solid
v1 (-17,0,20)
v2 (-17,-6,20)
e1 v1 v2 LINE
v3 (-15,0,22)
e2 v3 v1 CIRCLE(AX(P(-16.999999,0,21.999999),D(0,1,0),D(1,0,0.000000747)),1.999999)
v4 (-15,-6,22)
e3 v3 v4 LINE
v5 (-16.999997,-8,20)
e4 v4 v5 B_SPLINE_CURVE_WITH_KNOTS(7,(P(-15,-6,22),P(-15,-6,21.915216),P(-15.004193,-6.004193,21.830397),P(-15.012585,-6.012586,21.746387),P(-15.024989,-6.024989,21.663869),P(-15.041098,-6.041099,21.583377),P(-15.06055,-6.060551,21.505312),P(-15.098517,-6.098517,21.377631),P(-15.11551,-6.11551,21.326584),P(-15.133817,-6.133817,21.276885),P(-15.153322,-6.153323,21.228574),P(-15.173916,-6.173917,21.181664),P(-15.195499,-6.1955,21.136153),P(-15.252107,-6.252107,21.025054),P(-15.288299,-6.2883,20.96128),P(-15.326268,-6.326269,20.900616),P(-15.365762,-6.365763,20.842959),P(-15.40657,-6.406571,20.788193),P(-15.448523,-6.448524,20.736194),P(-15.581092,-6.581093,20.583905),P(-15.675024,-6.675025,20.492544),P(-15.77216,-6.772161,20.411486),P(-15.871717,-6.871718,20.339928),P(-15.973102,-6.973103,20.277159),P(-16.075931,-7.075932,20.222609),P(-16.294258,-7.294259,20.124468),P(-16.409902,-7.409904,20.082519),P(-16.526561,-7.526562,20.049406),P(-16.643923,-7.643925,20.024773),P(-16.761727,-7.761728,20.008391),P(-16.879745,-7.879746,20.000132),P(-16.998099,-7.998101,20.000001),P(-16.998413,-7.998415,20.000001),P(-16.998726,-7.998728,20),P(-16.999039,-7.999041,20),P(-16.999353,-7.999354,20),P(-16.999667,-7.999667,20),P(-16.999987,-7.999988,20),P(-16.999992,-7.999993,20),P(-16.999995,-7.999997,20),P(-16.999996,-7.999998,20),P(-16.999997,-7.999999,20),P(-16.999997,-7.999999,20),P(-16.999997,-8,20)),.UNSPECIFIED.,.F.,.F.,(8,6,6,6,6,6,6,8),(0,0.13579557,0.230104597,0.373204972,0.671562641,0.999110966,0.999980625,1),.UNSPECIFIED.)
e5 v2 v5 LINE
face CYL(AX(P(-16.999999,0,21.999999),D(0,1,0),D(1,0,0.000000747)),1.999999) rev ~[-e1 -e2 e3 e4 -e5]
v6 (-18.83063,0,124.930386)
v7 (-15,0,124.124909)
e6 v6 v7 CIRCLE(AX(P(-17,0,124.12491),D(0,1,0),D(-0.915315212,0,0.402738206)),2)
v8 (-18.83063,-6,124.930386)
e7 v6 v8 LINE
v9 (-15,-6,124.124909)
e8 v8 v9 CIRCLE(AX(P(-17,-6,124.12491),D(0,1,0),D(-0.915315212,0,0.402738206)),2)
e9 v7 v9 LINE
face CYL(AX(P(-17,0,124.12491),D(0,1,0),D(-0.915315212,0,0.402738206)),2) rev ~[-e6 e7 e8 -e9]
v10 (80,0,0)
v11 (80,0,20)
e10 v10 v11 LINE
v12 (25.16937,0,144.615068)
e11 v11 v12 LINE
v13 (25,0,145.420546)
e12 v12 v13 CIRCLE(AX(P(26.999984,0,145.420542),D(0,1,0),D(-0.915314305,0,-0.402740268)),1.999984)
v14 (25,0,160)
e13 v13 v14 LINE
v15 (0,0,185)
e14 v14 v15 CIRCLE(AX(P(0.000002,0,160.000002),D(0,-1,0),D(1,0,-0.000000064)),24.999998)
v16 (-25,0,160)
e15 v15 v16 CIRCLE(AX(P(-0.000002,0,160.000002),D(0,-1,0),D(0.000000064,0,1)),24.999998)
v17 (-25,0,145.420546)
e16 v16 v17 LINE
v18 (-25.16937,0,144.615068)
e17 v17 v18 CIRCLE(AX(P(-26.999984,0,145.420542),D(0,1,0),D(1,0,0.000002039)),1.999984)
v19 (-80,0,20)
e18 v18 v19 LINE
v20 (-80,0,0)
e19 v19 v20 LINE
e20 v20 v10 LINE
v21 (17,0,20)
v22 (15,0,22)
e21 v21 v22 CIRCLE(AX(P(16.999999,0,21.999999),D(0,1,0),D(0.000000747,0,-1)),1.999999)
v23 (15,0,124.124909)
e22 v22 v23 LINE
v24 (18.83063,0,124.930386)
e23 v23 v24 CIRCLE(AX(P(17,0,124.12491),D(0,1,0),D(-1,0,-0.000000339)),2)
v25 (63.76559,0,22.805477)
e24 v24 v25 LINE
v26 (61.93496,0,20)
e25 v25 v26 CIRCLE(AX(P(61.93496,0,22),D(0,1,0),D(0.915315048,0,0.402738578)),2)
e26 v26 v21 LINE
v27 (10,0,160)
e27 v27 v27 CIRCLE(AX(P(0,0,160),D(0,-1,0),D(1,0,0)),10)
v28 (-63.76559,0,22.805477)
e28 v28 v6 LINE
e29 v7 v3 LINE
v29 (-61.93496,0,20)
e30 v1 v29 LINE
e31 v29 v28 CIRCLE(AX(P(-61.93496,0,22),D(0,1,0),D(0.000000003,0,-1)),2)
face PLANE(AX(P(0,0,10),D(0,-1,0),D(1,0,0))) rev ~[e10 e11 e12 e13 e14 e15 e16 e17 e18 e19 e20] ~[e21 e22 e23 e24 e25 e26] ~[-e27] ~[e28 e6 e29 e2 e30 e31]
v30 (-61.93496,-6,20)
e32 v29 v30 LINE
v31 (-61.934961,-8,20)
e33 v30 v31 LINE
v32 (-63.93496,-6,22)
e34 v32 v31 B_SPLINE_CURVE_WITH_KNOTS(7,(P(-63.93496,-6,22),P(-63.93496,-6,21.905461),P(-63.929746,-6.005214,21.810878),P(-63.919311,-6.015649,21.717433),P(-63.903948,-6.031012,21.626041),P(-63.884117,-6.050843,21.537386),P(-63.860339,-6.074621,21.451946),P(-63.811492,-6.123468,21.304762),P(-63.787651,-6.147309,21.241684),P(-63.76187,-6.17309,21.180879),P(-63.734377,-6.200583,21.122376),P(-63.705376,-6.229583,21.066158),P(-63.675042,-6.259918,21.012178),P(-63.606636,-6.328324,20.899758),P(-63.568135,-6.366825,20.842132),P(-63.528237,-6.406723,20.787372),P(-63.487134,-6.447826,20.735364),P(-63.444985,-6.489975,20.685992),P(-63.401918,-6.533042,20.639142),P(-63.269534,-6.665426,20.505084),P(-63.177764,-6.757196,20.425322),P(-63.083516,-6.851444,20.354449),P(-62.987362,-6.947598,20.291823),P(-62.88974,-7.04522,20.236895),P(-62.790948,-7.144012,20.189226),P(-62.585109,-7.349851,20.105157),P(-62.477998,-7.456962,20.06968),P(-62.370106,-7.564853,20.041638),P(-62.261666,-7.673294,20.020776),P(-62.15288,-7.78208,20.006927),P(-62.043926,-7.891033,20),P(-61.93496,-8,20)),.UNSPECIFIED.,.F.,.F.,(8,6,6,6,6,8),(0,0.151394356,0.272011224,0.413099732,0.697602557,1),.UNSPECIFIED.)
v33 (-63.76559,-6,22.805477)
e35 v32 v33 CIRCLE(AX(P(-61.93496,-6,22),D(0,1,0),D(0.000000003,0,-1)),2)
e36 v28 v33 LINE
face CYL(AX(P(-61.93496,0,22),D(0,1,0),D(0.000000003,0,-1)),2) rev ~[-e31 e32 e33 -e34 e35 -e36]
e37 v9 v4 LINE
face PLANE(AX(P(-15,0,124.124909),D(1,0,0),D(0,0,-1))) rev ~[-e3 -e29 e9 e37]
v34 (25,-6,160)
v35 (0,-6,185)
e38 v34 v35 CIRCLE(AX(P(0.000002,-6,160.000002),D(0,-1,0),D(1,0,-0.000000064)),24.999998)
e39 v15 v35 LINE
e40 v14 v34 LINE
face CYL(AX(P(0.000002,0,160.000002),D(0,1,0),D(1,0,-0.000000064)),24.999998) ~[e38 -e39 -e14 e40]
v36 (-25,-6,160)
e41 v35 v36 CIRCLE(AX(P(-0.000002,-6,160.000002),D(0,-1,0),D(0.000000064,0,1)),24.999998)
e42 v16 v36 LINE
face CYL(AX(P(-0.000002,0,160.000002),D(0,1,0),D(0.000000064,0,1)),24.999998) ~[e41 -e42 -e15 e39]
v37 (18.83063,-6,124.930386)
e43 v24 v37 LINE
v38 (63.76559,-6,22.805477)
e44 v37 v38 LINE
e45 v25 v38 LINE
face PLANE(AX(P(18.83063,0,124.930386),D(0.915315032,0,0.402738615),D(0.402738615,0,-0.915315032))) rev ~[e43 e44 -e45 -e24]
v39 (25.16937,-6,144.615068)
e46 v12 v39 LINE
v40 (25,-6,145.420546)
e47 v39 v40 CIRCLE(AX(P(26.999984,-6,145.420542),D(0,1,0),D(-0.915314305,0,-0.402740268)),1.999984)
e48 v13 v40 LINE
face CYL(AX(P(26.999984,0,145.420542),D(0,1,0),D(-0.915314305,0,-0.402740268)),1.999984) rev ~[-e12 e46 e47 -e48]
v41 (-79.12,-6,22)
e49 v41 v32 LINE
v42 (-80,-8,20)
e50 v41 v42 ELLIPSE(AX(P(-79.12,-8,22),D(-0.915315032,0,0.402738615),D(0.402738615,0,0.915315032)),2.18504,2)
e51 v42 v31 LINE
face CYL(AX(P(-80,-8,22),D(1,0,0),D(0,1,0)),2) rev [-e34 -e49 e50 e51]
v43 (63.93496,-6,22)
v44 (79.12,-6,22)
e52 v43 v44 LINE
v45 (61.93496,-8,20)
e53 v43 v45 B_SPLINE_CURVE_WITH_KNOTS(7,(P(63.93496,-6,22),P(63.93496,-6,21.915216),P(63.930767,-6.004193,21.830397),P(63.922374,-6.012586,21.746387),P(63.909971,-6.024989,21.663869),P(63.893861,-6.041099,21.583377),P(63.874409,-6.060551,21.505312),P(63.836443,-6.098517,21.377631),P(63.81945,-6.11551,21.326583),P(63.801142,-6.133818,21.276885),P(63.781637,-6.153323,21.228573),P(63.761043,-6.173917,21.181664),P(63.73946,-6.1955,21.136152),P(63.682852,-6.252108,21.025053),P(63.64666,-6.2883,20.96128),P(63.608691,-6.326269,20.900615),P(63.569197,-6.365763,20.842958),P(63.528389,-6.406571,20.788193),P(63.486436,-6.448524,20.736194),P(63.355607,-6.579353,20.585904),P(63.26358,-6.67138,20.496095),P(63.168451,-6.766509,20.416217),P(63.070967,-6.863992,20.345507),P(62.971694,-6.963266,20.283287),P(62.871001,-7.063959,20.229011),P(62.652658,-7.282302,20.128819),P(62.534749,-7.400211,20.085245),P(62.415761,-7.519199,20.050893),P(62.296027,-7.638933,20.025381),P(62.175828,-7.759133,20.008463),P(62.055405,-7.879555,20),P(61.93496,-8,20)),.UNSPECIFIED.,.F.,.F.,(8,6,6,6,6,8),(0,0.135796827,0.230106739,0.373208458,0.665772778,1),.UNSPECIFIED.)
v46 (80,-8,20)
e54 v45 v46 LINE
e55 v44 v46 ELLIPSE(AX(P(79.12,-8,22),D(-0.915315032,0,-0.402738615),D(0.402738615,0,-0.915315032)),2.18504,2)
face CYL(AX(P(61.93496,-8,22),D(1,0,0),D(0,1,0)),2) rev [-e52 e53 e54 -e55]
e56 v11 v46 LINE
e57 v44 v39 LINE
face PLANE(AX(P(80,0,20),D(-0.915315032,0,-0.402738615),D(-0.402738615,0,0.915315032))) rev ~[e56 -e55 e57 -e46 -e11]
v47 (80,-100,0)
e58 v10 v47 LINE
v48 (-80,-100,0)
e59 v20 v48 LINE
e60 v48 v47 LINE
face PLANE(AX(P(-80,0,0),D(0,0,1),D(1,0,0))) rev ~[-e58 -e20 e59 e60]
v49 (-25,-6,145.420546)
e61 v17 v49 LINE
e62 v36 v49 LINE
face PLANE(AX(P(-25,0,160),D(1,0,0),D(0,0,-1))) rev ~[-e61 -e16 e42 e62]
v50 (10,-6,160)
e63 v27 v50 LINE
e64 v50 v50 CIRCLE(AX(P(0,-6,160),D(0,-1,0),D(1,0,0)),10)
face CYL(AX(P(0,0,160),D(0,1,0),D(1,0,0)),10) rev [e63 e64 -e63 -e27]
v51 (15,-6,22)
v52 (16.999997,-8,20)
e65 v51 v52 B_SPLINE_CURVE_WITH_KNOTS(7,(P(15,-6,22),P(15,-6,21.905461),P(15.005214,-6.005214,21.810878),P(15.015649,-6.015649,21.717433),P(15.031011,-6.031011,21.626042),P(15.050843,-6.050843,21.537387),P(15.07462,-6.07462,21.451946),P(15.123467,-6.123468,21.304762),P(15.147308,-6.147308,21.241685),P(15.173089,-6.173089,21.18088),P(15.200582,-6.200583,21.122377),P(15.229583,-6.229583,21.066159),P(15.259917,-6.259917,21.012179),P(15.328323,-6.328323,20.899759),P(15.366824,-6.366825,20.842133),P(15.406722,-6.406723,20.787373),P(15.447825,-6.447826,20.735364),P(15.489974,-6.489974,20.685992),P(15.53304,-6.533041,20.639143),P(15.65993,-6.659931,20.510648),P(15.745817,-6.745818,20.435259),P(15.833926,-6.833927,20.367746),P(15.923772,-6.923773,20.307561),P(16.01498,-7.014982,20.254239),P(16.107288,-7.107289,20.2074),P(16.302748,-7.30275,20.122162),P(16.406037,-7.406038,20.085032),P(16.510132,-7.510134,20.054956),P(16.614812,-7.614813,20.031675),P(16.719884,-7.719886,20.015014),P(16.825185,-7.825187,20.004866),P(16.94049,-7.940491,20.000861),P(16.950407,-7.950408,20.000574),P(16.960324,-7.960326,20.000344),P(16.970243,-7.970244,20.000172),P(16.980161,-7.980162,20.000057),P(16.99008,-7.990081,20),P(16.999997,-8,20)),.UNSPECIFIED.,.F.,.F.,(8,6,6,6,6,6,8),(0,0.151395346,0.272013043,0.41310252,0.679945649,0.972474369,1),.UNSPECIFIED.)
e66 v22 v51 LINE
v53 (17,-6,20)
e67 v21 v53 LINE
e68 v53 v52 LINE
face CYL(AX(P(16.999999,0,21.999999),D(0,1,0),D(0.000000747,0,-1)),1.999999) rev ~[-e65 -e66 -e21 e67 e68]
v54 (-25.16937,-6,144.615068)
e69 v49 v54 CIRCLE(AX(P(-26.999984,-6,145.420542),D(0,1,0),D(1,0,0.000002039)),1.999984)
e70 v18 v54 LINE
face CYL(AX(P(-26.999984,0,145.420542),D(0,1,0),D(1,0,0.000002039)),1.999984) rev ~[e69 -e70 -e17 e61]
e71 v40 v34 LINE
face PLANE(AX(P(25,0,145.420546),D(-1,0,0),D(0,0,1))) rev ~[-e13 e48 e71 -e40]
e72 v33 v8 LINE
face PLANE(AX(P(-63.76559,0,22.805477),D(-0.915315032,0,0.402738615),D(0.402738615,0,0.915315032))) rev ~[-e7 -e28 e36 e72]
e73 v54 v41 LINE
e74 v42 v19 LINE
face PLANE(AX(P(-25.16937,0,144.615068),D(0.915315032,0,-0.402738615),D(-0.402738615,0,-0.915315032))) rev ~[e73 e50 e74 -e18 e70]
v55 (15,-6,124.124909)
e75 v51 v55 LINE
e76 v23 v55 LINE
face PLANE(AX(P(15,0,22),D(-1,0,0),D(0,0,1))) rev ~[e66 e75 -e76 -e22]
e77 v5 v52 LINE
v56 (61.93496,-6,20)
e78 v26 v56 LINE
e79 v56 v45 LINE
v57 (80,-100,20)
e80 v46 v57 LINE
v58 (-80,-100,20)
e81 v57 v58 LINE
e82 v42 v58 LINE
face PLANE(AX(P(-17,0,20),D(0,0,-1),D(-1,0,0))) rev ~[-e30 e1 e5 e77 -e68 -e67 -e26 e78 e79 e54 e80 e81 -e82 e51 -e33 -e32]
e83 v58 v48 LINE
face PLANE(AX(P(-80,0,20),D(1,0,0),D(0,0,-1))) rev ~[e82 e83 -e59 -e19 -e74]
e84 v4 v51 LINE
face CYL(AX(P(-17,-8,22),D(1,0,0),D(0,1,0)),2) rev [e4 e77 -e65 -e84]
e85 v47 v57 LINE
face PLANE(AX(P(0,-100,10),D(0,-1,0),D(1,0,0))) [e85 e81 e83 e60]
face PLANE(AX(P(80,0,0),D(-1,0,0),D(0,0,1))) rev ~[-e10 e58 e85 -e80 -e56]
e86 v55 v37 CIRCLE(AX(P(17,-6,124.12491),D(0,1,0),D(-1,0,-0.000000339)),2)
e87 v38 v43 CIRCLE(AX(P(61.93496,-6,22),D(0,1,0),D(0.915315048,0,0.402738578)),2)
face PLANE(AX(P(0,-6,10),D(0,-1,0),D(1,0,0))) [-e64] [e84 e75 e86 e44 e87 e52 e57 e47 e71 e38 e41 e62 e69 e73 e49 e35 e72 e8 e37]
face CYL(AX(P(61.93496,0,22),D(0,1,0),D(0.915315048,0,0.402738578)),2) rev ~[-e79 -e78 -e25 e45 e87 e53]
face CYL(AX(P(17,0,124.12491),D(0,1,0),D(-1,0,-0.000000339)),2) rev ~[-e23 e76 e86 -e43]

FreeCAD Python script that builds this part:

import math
import FreeCAD as App
import Part
import Sketcher

V = App.Vector
Q = App.Units.Quantity


def edges_at(feature, points):
    """Names of the edges that pass closest to the given points."""
    edges = feature.Shape.Edges
    near = lambda p: min(range(len(edges)), key=lambda i: edges[i].distToShape(Part.Vertex(*p))[0])
    return sorted({f"Edge{near(p) + 1}" for p in points})


def add_polygon(sketch, points):
    """Adds a closed chain of lines whose ends are joined by coincident constraints."""
    first, n = sketch.GeometryCount, len(points)
    for a, b in zip(points, points[1:] + points[:1]):
        sketch.addGeometry(Part.LineSegment(App.Vector(*a, 0), App.Vector(*b, 0)), False)
    for i in range(n):
        sketch.addConstraint(Sketcher.Constraint("Coincident", first + i, 2, first + (i + 1) % n, 1))

doc = App.newDocument("Part")
body = doc.addObject("PartDesign::Body", "Body")

# Sketch on XZ plane
sketch1 = doc.addObject("Sketcher::SketchObject", "Sketch")
body.addObject(sketch1)
sketch1.AttachmentSupport = (doc.XZ_Plane, [""])
sketch1.MapMode = "FlatFace"
sketch1.addGeometry(Part.LineSegment(V(-80, 20, 0), V(-80, 0, 0)), False)
sketch1.addGeometry(Part.LineSegment(V(-80, 0, 0), V(80, 0, 0)), False)
sketch1.addGeometry(Part.LineSegment(V(80, 0, 0), V(80, 20, 0)), False)
sketch1.addGeometry(Part.LineSegment(V(80, 20, 0), V(25.2, 144.6, 0)), False)
sketch1.addGeometry(Part.ArcOfCircle(Part.Circle(V(27, 145.4, 0), V(0, 0, 1), 2), math.radians(180), math.radians(204)), False)
sketch1.addGeometry(Part.LineSegment(V(25, 145.4, 0), V(25, 160, 0)), False)
sketch1.addGeometry(Part.ArcOfCircle(Part.Circle(V(0, 160, 0), V(0, 0, 1), 25), math.radians(0), math.radians(90)), False)
sketch1.addGeometry(Part.ArcOfCircle(Part.Circle(V(0, 160, 0), V(0, 0, 1), 25), math.radians(90), math.radians(180)), False)
sketch1.addGeometry(Part.LineSegment(V(-25, 160, 0), V(-25, 145.4, 0)), False)
sketch1.addGeometry(Part.ArcOfCircle(Part.Circle(V(-27, 145.4, 0), V(0, 0, 1), 2), math.radians(-24), math.radians(0)), False)
sketch1.addGeometry(Part.LineSegment(V(-25.2, 144.6, 0), V(-80, 20, 0)), False)
sketch1.addGeometry(Part.LineSegment(V(-17, 20, 0), V(-61.9, 20, 0)), False)
sketch1.addGeometry(Part.ArcOfCircle(Part.Circle(V(-61.9, 22, 0), V(0, 0, 1), 2), math.radians(156), math.radians(270)), False)
sketch1.addGeometry(Part.LineSegment(V(-63.8, 22.8, 0), V(-18.8, 124.9, 0)), False)
sketch1.addGeometry(Part.ArcOfCircle(Part.Circle(V(-17, 124.1, 0), V(0, 0, 1), 2), math.radians(0), math.radians(156)), False)
sketch1.addGeometry(Part.LineSegment(V(-15, 124.1, 0), V(-15, 22, 0)), False)
sketch1.addGeometry(Part.ArcOfCircle(Part.Circle(V(-17, 22, 0), V(0, 0, 1), 2), math.radians(-90), math.radians(0)), False)
sketch1.addGeometry(Part.LineSegment(V(61.9, 20, 0), V(17, 20, 0)), False)
sketch1.addGeometry(Part.ArcOfCircle(Part.Circle(V(17, 22, 0), V(0, 0, 1), 2), math.radians(180), math.radians(270)), False)
sketch1.addGeometry(Part.LineSegment(V(15, 22, 0), V(15, 124.1, 0)), False)
sketch1.addGeometry(Part.ArcOfCircle(Part.Circle(V(17, 124.1, 0), V(0, 0, 1), 2), math.radians(24), math.radians(180)), False)
sketch1.addGeometry(Part.LineSegment(V(18.8, 124.9, 0), V(63.8, 22.8, 0)), False)
sketch1.addGeometry(Part.ArcOfCircle(Part.Circle(V(61.9, 22, 0), V(0, 0, 1), 2), math.radians(-90), math.radians(24)), False)
sketch1.addGeometry(Part.Circle(V(0, 160, 0), V(0, 0, 1), 10), False)
sketch1.addConstraint(Sketcher.Constraint("Coincident", 0, 2, 1, 1))
sketch1.addConstraint(Sketcher.Constraint("Coincident", 1, 2, 2, 1))
sketch1.addConstraint(Sketcher.Constraint("Coincident", 2, 2, 3, 1))
sketch1.addConstraint(Sketcher.Constraint("Tangent", 3, 2, 4, 2))
sketch1.addConstraint(Sketcher.Constraint("Coincident", 4, 1, 5, 1))
sketch1.addConstraint(Sketcher.Constraint("Tangent", 5, 2, 6, 1))
sketch1.addConstraint(Sketcher.Constraint("Tangent", 6, 2, 7, 1))
sketch1.addConstraint(Sketcher.Constraint("Tangent", 7, 2, 8, 1))
sketch1.addConstraint(Sketcher.Constraint("Coincident", 8, 2, 9, 2))
sketch1.addConstraint(Sketcher.Constraint("Tangent", 9, 1, 10, 1))
sketch1.addConstraint(Sketcher.Constraint("Coincident", 10, 2, 0, 1))
sketch1.addConstraint(Sketcher.Constraint("Tangent", 11, 2, 12, 2))
sketch1.addConstraint(Sketcher.Constraint("Tangent", 12, 1, 13, 1))
sketch1.addConstraint(Sketcher.Constraint("Tangent", 13, 2, 14, 2))
sketch1.addConstraint(Sketcher.Constraint("Tangent", 14, 1, 15, 1))
sketch1.addConstraint(Sketcher.Constraint("Tangent", 15, 2, 16, 2))
sketch1.addConstraint(Sketcher.Constraint("Tangent", 16, 1, 11, 1))
sketch1.addConstraint(Sketcher.Constraint("Tangent", 17, 2, 18, 2))
sketch1.addConstraint(Sketcher.Constraint("Tangent", 18, 1, 19, 1))
sketch1.addConstraint(Sketcher.Constraint("Tangent", 19, 2, 20, 2))
sketch1.addConstraint(Sketcher.Constraint("Tangent", 20, 1, 21, 1))
sketch1.addConstraint(Sketcher.Constraint("Tangent", 21, 2, 22, 2))
sketch1.addConstraint(Sketcher.Constraint("Tangent", 22, 1, 17, 1))
sketch1.addConstraint(Sketcher.Constraint("Vertical", 0))
sketch1.addConstraint(Sketcher.Constraint("Horizontal", 1))
sketch1.addConstraint(Sketcher.Constraint("Vertical", 2))
sketch1.addConstraint(Sketcher.Constraint("Vertical", 5))
sketch1.addConstraint(Sketcher.Constraint("Vertical", 8))
sketch1.addConstraint(Sketcher.Constraint("Horizontal", 11))
sketch1.addConstraint(Sketcher.Constraint("Vertical", 15))
sketch1.addConstraint(Sketcher.Constraint("Horizontal", 17))
sketch1.addConstraint(Sketcher.Constraint("Vertical", 19))
sketch1.addConstraint(Sketcher.Constraint("Coincident", 23, 3, 6, 3))
sketch1.addConstraint(Sketcher.Constraint("Equal", 6, 7))
sketch1.addConstraint(Sketcher.Constraint("Equal", 4, 9))
sketch1.addConstraint(Sketcher.Constraint("Equal", 12, 14))
sketch1.addConstraint(Sketcher.Constraint("Equal", 14, 16))
sketch1.addConstraint(Sketcher.Constraint("Equal", 16, 18))
sketch1.addConstraint(Sketcher.Constraint("Equal", 18, 20))
sketch1.addConstraint(Sketcher.Constraint("Equal", 20, 22))
sketch1.addConstraint(Sketcher.Constraint("Symmetric", 0, 2, 1, 2, -1, 1))
sketch1.addConstraint(Sketcher.Constraint("Symmetric", 4, 3, 9, 3, -2))
sketch1.addConstraint(Sketcher.Constraint("Symmetric", 16, 3, 18, 3, -2))
sketch1.addConstraint(Sketcher.Constraint("Symmetric", 13, 2, 20, 1, -2))
sketch1.addConstraint(Sketcher.Constraint("PointOnObject", 6, 2, -2))
sketch1.addConstraint(Sketcher.Constraint("Parallel", 10, 13))
sketch1.addConstraint(Sketcher.Constraint("Parallel", 3, 21))
sketch1.addConstraint(Sketcher.Constraint("Horizontal", 4, 1, 8, 2))
sketch1.addConstraint(Sketcher.Constraint("Horizontal", 10, 2, 11, 2))
sketch1.addConstraint(Sketcher.Constraint("Diameter", 23, Q("20 mm")))
sketch1.addConstraint(Sketcher.Constraint("Radius", 6, Q("24.999998 mm")))
sketch1.addConstraint(Sketcher.Constraint("Radius", 12, Q("2 mm")))
sketch1.addConstraint(Sketcher.Constraint("DistanceX", 1, 1, 1, 2, Q("160 mm")))
sketch1.addConstraint(Sketcher.Constraint("DistanceY", 0, 2, 0, 1, Q("20 mm")))
sketch1.addConstraint(Sketcher.Constraint("DistanceY", -1, 1, 6, 3, Q("160.000002 mm")))
sketch1.addConstraint(Sketcher.Constraint("DistanceX", 14, 3, -1, 1, Q("17 mm")))
sketch1.addConstraint(Sketcher.Constraint("Radius", 4, Q("1.999984 mm")))
sketch1.addConstraint(Sketcher.Constraint("DistanceX", 11, 2, 11, 1, Q("44.93496 mm")))
sketch1.addConstraint(Sketcher.Constraint("DistanceY", 15, 2, 15, 1, Q("102.124909 mm")))
sketch1.addConstraint(Sketcher.Constraint("DistanceY", 5, 1, 5, 2, Q("14.579454 mm")))
pad1 = doc.addObject("PartDesign::Pad", "Pad")
body.addObject(pad1)
pad1.Profile = sketch1
pad1.Length = 6

# Sketch on XZ plane
sketch2 = doc.addObject("Sketcher::SketchObject", "Sketch001")
body.addObject(sketch2)
sketch2.AttachmentSupport = (doc.XZ_Plane, [""])
sketch2.MapMode = "FlatFace"
add_polygon(sketch2, [(-80, 20), (-80, 0), (80, 0), (80, 20)])  # lines 0-3
sketch2.addConstraint(Sketcher.Constraint("Vertical", 0))
sketch2.addConstraint(Sketcher.Constraint("Horizontal", 1))
sketch2.addConstraint(Sketcher.Constraint("Vertical", 2))
sketch2.addConstraint(Sketcher.Constraint("Horizontal", 3))
sketch2.addConstraint(Sketcher.Constraint("Symmetric", 0, 2, 1, 2, -1, 1))
sketch2.addConstraint(Sketcher.Constraint("DistanceX", 1, 1, 1, 2, Q("160 mm")))
sketch2.addConstraint(Sketcher.Constraint("DistanceY", 0, 2, 0, 1, Q("20 mm")))
pad2 = doc.addObject("PartDesign::Pad", "Pad001")
body.addObject(pad2)
pad2.Profile = sketch2
pad2.Length = 100
doc.recompute()

fillet = doc.addObject("PartDesign::Fillet", "Fillet")
body.addObject(fillet)
fillet.Base = (pad2, edges_at(pad2, [(70.967, -6, 20), (0, -6, 20), (-70.967, -6, 20)]))
fillet.Radius = 2

doc.recompute()
